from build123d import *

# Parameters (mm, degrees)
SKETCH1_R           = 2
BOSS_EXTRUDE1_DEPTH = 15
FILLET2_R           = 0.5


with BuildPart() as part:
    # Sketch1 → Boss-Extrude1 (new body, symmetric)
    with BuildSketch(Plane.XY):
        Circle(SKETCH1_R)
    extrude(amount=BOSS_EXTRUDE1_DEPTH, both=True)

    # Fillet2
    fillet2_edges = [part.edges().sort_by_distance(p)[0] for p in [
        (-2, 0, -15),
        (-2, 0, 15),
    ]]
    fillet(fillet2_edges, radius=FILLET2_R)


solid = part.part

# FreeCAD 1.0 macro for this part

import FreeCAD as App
import Part
import Sketcher
Q = App.Units.Quantity


def edges_at(feature, points):
    """Names of the edges that pass closest to the given points."""
    edges = feature.Shape.Edges
    near = lambda p: min(range(len(edges)), key=lambda i: edges[i].distToShape(Part.Vertex(*p))[0])
    return sorted({f"Edge{near(p) + 1}" for p in points})

doc = App.newDocument("Part")
body = doc.addObject("PartDesign::Body", "Body")

sketch1 = body.newObject("Sketcher::SketchObject", "Sketch")
sketch1.AttachmentSupport = (doc.getObject("XY_Plane"), [""])
sketch1.MapMode = "FlatFace"
sketch1.addGeometry(Part.Circle(App.Vector(0, 0, 0), App.Vector(0, 0, 1), 2), False)
sketch1.addConstraint([
    Sketcher.Constraint("Coincident", 0, 3, -1, 1),
    Sketcher.Constraint("Diameter", 0, Q("4 mm")),
])
pad1 = body.newObject("PartDesign::Pad", "Pad")
pad1.Profile = sketch1
pad1.Length = 30
pad1.Midplane = True
doc.recompute()

fillet = body.newObject("PartDesign::Fillet", "Fillet")
fillet.Base = (pad1, edges_at(pad1, [(-2, 0, -15), (-2, 0, 15)]))
fillet.Radius = 0.5

doc.recompute()
